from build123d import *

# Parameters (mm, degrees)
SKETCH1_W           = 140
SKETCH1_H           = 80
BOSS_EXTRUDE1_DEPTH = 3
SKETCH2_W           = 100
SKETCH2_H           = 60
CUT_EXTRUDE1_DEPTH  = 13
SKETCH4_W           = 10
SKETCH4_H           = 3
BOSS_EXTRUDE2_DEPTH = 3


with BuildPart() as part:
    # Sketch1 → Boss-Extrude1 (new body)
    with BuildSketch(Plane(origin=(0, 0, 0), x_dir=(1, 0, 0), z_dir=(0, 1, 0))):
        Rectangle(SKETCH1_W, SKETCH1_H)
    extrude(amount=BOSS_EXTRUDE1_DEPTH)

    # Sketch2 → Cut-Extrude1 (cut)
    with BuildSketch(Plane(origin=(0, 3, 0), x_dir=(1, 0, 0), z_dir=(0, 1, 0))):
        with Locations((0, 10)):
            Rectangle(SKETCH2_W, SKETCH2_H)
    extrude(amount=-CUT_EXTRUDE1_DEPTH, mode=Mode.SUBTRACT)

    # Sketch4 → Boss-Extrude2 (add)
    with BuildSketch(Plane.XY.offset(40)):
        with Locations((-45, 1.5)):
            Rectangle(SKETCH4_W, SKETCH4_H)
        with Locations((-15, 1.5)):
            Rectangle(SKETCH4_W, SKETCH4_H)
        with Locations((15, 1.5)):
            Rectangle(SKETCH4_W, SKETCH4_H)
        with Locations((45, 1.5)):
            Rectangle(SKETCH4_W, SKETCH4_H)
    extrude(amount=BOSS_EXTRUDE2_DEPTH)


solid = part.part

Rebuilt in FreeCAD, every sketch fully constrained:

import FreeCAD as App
import Part
import Sketcher
from FreeCAD import Vector

doc = App.newDocument("Part")
body = doc.addObject("PartDesign::Body", "Body")

sketch1 = doc.addObject("Sketcher::SketchObject", "Sketch")
body.addObject(sketch1)
sketch1.AttachmentSupport = (doc.XZ_Plane, [""])
sketch1.MapMode = "FlatFace"
sketch1.addGeometry([
    Part.LineSegment(Vector(-70, -40, 0), Vector(-70, 40, 0)),
    Part.LineSegment(Vector(-70, 40, 0), Vector(70, 40, 0)),
    Part.LineSegment(Vector(70, 40, 0), Vector(70, -40, 0)),
    Part.LineSegment(Vector(70, -40, 0), Vector(-70, -40, 0)),
], False)
sketch1.addConstraint([
    Sketcher.Constraint("Coincident", 0, 2, 1, 1),
    Sketcher.Constraint("Coincident", 1, 2, 2, 1),
    Sketcher.Constraint("Coincident", 2, 2, 3, 1),
    Sketcher.Constraint("Coincident", 3, 2, 0, 1),
    Sketcher.Constraint("Vertical", 0),
    Sketcher.Constraint("Horizontal", 1),
    Sketcher.Constraint("Vertical", 2),
    Sketcher.Constraint("Horizontal", 3),
    Sketcher.Constraint("Symmetric", 0, 2, 2, 2, -1, 1),
    Sketcher.Constraint("DistanceX", 1, 1, 1, 2, 140.0),
    Sketcher.Constraint("DistanceY", 0, 1, 0, 2, 80.0),
])
pad1 = doc.addObject("PartDesign::Pad", "Pad")
body.addObject(pad1)
pad1.Profile = sketch1
pad1.Length = 3
pad1.Reversed = True

sketch2 = doc.addObject("Sketcher::SketchObject", "Sketch001")
body.addObject(sketch2)
sketch2.AttachmentSupport = (doc.XZ_Plane, [""])
sketch2.MapMode = "FlatFace"
sketch2.AttachmentOffset = App.Placement(Vector(0, 0, -3), App.Rotation())
sketch2.addGeometry([
    Part.LineSegment(Vector(-50, -40, 0), Vector(-50, 20, 0)),
    Part.LineSegment(Vector(-50, 20, 0), Vector(50, 20, 0)),
    Part.LineSegment(Vector(50, 20, 0), Vector(50, -40, 0)),
    Part.LineSegment(Vector(50, -40, 0), Vector(-50, -40, 0)),
], False)
sketch2.addConstraint([
    Sketcher.Constraint("Coincident", 0, 2, 1, 1),
    Sketcher.Constraint("Coincident", 1, 2, 2, 1),
    Sketcher.Constraint("Coincident", 2, 2, 3, 1),
    Sketcher.Constraint("Coincident", 3, 2, 0, 1),
    Sketcher.Constraint("Vertical", 0),
    Sketcher.Constraint("Horizontal", 1),
    Sketcher.Constraint("Vertical", 2),
    Sketcher.Constraint("Horizontal", 3),
    Sketcher.Constraint("DistanceX", 1, 1, 1, 2, 100.0),
    Sketcher.Constraint("DistanceY", 0, 1, 0, 2, 60.0),
    Sketcher.Constraint("DistanceX", 0, 2, -1, 1, 50.0),
    Sketcher.Constraint("DistanceY", -1, 1, 0, 2, 20.0),
])
pocket1 = doc.addObject("PartDesign::Pocket", "Pocket")
body.addObject(pocket1)
pocket1.Profile = sketch2
pocket1.Length = 13
pocket1.Reversed = True

sketch3 = doc.addObject("Sketcher::SketchObject", "Sketch002")
body.addObject(sketch3)
sketch3.AttachmentSupport = (doc.XY_Plane, [""])
sketch3.MapMode = "FlatFace"
sketch3.AttachmentOffset = App.Placement(Vector(0, 0, 40), App.Rotation())
sketch3.addGeometry([
    Part.LineSegment(Vector(-50, 3, 0), Vector(-50, 0, 0)),
    Part.LineSegment(Vector(-50, 0, 0), Vector(-40, 0, 0)),
    Part.LineSegment(Vector(-40, 0, 0), Vector(-40, 3, 0)),
    Part.LineSegment(Vector(-40, 3, 0), Vector(-50, 3, 0)),
    Part.LineSegment(Vector(-20, 3, 0), Vector(-20, 0, 0)),
    Part.LineSegment(Vector(-20, 0, 0), Vector(-10, 0, 0)),
    Part.LineSegment(Vector(-10, 0, 0), Vector(-10, 3, 0)),
    Part.LineSegment(Vector(-10, 3, 0), Vector(-20, 3, 0)),
    Part.LineSegment(Vector(10, 3, 0), Vector(10, 0, 0)),
    Part.LineSegment(Vector(10, 0, 0), Vector(20, 0, 0)),
    Part.LineSegment(Vector(20, 0, 0), Vector(20, 3, 0)),
    Part.LineSegment(Vector(20, 3, 0), Vector(10, 3, 0)),
    Part.LineSegment(Vector(40, 3, 0), Vector(40, 0, 0)),
    Part.LineSegment(Vector(40, 0, 0), Vector(50, 0, 0)),
    Part.LineSegment(Vector(50, 0, 0), Vector(50, 3, 0)),
    Part.LineSegment(Vector(50, 3, 0), Vector(40, 3, 0)),
], False)
sketch3.addConstraint([
    Sketcher.Constraint("Coincident", 0, 2, 1, 1),
    Sketcher.Constraint("Coincident", 1, 2, 2, 1),
    Sketcher.Constraint("Coincident", 2, 2, 3, 1),
    Sketcher.Constraint("Coincident", 3, 2, 0, 1),
    Sketcher.Constraint("Coincident", 4, 2, 5, 1),
    Sketcher.Constraint("Coincident", 5, 2, 6, 1),
    Sketcher.Constraint("Coincident", 6, 2, 7, 1),
    Sketcher.Constraint("Coincident", 7, 2, 4, 1),
    Sketcher.Constraint("Coincident", 8, 2, 9, 1),
    Sketcher.Constraint("Coincident", 9, 2, 10, 1),
    Sketcher.Constraint("Coincident", 10, 2, 11, 1),
    Sketcher.Constraint("Coincident", 11, 2, 8, 1),
    Sketcher.Constraint("Coincident", 12, 2, 13, 1),
    Sketcher.Constraint("Coincident", 13, 2, 14, 1),
    Sketcher.Constraint("Coincident", 14, 2, 15, 1),
    Sketcher.Constraint("Coincident", 15, 2, 12, 1),
    Sketcher.Constraint("Vertical", 0),
    Sketcher.Constraint("Horizontal", 1),
    Sketcher.Constraint("Vertical", 2),
    Sketcher.Constraint("Horizontal", 3),
    Sketcher.Constraint("Vertical", 4),
    Sketcher.Constraint("Horizontal", 5),
    Sketcher.Constraint("Vertical", 6),
    Sketcher.Constraint("Horizontal", 7),
    Sketcher.Constraint("Vertical", 8),
    Sketcher.Constraint("Horizontal", 9),
    Sketcher.Constraint("Vertical", 10),
    Sketcher.Constraint("Horizontal", 11),
    Sketcher.Constraint("Vertical", 12),
    Sketcher.Constraint("Horizontal", 13),
    Sketcher.Constraint("Vertical", 14),
    Sketcher.Constraint("Horizontal", 15),
    Sketcher.Constraint("Symmetric", 5, 2, 8, 2, -1, 1),
    Sketcher.Constraint("Symmetric", 1, 2, 12, 2, -1, 1),
    Sketcher.Constraint("Symmetric", 4, 2, 9, 2, -2),
    Sketcher.Constraint("Symmetric", 0, 2, 13, 2, -2),
    Sketcher.Constraint("Horizontal", 3, 2, 6, 2),
    Sketcher.Constraint("Horizontal", 7, 2, 10, 2),
    Sketcher.Constraint("Horizontal", 11, 2, 14, 2),
    Sketcher.Constraint("Equal", 3, 5),
    Sketcher.Constraint("DistanceX", 1, 1, 1, 2, 10.0),
    Sketcher.Constraint("DistanceY", 0, 2, 0, 1, 3.0),
    Sketcher.Constraint("DistanceX", 0, 2, -1, 1, 50.0),
    Sketcher.Constraint("DistanceX", 4, 2, -1, 1, 20.0),
])
pad2 = doc.addObject("PartDesign::Pad", "Pad001")
body.addObject(pad2)
pad2.Profile = sketch3
pad2.Length = 3

doc.recompute()
